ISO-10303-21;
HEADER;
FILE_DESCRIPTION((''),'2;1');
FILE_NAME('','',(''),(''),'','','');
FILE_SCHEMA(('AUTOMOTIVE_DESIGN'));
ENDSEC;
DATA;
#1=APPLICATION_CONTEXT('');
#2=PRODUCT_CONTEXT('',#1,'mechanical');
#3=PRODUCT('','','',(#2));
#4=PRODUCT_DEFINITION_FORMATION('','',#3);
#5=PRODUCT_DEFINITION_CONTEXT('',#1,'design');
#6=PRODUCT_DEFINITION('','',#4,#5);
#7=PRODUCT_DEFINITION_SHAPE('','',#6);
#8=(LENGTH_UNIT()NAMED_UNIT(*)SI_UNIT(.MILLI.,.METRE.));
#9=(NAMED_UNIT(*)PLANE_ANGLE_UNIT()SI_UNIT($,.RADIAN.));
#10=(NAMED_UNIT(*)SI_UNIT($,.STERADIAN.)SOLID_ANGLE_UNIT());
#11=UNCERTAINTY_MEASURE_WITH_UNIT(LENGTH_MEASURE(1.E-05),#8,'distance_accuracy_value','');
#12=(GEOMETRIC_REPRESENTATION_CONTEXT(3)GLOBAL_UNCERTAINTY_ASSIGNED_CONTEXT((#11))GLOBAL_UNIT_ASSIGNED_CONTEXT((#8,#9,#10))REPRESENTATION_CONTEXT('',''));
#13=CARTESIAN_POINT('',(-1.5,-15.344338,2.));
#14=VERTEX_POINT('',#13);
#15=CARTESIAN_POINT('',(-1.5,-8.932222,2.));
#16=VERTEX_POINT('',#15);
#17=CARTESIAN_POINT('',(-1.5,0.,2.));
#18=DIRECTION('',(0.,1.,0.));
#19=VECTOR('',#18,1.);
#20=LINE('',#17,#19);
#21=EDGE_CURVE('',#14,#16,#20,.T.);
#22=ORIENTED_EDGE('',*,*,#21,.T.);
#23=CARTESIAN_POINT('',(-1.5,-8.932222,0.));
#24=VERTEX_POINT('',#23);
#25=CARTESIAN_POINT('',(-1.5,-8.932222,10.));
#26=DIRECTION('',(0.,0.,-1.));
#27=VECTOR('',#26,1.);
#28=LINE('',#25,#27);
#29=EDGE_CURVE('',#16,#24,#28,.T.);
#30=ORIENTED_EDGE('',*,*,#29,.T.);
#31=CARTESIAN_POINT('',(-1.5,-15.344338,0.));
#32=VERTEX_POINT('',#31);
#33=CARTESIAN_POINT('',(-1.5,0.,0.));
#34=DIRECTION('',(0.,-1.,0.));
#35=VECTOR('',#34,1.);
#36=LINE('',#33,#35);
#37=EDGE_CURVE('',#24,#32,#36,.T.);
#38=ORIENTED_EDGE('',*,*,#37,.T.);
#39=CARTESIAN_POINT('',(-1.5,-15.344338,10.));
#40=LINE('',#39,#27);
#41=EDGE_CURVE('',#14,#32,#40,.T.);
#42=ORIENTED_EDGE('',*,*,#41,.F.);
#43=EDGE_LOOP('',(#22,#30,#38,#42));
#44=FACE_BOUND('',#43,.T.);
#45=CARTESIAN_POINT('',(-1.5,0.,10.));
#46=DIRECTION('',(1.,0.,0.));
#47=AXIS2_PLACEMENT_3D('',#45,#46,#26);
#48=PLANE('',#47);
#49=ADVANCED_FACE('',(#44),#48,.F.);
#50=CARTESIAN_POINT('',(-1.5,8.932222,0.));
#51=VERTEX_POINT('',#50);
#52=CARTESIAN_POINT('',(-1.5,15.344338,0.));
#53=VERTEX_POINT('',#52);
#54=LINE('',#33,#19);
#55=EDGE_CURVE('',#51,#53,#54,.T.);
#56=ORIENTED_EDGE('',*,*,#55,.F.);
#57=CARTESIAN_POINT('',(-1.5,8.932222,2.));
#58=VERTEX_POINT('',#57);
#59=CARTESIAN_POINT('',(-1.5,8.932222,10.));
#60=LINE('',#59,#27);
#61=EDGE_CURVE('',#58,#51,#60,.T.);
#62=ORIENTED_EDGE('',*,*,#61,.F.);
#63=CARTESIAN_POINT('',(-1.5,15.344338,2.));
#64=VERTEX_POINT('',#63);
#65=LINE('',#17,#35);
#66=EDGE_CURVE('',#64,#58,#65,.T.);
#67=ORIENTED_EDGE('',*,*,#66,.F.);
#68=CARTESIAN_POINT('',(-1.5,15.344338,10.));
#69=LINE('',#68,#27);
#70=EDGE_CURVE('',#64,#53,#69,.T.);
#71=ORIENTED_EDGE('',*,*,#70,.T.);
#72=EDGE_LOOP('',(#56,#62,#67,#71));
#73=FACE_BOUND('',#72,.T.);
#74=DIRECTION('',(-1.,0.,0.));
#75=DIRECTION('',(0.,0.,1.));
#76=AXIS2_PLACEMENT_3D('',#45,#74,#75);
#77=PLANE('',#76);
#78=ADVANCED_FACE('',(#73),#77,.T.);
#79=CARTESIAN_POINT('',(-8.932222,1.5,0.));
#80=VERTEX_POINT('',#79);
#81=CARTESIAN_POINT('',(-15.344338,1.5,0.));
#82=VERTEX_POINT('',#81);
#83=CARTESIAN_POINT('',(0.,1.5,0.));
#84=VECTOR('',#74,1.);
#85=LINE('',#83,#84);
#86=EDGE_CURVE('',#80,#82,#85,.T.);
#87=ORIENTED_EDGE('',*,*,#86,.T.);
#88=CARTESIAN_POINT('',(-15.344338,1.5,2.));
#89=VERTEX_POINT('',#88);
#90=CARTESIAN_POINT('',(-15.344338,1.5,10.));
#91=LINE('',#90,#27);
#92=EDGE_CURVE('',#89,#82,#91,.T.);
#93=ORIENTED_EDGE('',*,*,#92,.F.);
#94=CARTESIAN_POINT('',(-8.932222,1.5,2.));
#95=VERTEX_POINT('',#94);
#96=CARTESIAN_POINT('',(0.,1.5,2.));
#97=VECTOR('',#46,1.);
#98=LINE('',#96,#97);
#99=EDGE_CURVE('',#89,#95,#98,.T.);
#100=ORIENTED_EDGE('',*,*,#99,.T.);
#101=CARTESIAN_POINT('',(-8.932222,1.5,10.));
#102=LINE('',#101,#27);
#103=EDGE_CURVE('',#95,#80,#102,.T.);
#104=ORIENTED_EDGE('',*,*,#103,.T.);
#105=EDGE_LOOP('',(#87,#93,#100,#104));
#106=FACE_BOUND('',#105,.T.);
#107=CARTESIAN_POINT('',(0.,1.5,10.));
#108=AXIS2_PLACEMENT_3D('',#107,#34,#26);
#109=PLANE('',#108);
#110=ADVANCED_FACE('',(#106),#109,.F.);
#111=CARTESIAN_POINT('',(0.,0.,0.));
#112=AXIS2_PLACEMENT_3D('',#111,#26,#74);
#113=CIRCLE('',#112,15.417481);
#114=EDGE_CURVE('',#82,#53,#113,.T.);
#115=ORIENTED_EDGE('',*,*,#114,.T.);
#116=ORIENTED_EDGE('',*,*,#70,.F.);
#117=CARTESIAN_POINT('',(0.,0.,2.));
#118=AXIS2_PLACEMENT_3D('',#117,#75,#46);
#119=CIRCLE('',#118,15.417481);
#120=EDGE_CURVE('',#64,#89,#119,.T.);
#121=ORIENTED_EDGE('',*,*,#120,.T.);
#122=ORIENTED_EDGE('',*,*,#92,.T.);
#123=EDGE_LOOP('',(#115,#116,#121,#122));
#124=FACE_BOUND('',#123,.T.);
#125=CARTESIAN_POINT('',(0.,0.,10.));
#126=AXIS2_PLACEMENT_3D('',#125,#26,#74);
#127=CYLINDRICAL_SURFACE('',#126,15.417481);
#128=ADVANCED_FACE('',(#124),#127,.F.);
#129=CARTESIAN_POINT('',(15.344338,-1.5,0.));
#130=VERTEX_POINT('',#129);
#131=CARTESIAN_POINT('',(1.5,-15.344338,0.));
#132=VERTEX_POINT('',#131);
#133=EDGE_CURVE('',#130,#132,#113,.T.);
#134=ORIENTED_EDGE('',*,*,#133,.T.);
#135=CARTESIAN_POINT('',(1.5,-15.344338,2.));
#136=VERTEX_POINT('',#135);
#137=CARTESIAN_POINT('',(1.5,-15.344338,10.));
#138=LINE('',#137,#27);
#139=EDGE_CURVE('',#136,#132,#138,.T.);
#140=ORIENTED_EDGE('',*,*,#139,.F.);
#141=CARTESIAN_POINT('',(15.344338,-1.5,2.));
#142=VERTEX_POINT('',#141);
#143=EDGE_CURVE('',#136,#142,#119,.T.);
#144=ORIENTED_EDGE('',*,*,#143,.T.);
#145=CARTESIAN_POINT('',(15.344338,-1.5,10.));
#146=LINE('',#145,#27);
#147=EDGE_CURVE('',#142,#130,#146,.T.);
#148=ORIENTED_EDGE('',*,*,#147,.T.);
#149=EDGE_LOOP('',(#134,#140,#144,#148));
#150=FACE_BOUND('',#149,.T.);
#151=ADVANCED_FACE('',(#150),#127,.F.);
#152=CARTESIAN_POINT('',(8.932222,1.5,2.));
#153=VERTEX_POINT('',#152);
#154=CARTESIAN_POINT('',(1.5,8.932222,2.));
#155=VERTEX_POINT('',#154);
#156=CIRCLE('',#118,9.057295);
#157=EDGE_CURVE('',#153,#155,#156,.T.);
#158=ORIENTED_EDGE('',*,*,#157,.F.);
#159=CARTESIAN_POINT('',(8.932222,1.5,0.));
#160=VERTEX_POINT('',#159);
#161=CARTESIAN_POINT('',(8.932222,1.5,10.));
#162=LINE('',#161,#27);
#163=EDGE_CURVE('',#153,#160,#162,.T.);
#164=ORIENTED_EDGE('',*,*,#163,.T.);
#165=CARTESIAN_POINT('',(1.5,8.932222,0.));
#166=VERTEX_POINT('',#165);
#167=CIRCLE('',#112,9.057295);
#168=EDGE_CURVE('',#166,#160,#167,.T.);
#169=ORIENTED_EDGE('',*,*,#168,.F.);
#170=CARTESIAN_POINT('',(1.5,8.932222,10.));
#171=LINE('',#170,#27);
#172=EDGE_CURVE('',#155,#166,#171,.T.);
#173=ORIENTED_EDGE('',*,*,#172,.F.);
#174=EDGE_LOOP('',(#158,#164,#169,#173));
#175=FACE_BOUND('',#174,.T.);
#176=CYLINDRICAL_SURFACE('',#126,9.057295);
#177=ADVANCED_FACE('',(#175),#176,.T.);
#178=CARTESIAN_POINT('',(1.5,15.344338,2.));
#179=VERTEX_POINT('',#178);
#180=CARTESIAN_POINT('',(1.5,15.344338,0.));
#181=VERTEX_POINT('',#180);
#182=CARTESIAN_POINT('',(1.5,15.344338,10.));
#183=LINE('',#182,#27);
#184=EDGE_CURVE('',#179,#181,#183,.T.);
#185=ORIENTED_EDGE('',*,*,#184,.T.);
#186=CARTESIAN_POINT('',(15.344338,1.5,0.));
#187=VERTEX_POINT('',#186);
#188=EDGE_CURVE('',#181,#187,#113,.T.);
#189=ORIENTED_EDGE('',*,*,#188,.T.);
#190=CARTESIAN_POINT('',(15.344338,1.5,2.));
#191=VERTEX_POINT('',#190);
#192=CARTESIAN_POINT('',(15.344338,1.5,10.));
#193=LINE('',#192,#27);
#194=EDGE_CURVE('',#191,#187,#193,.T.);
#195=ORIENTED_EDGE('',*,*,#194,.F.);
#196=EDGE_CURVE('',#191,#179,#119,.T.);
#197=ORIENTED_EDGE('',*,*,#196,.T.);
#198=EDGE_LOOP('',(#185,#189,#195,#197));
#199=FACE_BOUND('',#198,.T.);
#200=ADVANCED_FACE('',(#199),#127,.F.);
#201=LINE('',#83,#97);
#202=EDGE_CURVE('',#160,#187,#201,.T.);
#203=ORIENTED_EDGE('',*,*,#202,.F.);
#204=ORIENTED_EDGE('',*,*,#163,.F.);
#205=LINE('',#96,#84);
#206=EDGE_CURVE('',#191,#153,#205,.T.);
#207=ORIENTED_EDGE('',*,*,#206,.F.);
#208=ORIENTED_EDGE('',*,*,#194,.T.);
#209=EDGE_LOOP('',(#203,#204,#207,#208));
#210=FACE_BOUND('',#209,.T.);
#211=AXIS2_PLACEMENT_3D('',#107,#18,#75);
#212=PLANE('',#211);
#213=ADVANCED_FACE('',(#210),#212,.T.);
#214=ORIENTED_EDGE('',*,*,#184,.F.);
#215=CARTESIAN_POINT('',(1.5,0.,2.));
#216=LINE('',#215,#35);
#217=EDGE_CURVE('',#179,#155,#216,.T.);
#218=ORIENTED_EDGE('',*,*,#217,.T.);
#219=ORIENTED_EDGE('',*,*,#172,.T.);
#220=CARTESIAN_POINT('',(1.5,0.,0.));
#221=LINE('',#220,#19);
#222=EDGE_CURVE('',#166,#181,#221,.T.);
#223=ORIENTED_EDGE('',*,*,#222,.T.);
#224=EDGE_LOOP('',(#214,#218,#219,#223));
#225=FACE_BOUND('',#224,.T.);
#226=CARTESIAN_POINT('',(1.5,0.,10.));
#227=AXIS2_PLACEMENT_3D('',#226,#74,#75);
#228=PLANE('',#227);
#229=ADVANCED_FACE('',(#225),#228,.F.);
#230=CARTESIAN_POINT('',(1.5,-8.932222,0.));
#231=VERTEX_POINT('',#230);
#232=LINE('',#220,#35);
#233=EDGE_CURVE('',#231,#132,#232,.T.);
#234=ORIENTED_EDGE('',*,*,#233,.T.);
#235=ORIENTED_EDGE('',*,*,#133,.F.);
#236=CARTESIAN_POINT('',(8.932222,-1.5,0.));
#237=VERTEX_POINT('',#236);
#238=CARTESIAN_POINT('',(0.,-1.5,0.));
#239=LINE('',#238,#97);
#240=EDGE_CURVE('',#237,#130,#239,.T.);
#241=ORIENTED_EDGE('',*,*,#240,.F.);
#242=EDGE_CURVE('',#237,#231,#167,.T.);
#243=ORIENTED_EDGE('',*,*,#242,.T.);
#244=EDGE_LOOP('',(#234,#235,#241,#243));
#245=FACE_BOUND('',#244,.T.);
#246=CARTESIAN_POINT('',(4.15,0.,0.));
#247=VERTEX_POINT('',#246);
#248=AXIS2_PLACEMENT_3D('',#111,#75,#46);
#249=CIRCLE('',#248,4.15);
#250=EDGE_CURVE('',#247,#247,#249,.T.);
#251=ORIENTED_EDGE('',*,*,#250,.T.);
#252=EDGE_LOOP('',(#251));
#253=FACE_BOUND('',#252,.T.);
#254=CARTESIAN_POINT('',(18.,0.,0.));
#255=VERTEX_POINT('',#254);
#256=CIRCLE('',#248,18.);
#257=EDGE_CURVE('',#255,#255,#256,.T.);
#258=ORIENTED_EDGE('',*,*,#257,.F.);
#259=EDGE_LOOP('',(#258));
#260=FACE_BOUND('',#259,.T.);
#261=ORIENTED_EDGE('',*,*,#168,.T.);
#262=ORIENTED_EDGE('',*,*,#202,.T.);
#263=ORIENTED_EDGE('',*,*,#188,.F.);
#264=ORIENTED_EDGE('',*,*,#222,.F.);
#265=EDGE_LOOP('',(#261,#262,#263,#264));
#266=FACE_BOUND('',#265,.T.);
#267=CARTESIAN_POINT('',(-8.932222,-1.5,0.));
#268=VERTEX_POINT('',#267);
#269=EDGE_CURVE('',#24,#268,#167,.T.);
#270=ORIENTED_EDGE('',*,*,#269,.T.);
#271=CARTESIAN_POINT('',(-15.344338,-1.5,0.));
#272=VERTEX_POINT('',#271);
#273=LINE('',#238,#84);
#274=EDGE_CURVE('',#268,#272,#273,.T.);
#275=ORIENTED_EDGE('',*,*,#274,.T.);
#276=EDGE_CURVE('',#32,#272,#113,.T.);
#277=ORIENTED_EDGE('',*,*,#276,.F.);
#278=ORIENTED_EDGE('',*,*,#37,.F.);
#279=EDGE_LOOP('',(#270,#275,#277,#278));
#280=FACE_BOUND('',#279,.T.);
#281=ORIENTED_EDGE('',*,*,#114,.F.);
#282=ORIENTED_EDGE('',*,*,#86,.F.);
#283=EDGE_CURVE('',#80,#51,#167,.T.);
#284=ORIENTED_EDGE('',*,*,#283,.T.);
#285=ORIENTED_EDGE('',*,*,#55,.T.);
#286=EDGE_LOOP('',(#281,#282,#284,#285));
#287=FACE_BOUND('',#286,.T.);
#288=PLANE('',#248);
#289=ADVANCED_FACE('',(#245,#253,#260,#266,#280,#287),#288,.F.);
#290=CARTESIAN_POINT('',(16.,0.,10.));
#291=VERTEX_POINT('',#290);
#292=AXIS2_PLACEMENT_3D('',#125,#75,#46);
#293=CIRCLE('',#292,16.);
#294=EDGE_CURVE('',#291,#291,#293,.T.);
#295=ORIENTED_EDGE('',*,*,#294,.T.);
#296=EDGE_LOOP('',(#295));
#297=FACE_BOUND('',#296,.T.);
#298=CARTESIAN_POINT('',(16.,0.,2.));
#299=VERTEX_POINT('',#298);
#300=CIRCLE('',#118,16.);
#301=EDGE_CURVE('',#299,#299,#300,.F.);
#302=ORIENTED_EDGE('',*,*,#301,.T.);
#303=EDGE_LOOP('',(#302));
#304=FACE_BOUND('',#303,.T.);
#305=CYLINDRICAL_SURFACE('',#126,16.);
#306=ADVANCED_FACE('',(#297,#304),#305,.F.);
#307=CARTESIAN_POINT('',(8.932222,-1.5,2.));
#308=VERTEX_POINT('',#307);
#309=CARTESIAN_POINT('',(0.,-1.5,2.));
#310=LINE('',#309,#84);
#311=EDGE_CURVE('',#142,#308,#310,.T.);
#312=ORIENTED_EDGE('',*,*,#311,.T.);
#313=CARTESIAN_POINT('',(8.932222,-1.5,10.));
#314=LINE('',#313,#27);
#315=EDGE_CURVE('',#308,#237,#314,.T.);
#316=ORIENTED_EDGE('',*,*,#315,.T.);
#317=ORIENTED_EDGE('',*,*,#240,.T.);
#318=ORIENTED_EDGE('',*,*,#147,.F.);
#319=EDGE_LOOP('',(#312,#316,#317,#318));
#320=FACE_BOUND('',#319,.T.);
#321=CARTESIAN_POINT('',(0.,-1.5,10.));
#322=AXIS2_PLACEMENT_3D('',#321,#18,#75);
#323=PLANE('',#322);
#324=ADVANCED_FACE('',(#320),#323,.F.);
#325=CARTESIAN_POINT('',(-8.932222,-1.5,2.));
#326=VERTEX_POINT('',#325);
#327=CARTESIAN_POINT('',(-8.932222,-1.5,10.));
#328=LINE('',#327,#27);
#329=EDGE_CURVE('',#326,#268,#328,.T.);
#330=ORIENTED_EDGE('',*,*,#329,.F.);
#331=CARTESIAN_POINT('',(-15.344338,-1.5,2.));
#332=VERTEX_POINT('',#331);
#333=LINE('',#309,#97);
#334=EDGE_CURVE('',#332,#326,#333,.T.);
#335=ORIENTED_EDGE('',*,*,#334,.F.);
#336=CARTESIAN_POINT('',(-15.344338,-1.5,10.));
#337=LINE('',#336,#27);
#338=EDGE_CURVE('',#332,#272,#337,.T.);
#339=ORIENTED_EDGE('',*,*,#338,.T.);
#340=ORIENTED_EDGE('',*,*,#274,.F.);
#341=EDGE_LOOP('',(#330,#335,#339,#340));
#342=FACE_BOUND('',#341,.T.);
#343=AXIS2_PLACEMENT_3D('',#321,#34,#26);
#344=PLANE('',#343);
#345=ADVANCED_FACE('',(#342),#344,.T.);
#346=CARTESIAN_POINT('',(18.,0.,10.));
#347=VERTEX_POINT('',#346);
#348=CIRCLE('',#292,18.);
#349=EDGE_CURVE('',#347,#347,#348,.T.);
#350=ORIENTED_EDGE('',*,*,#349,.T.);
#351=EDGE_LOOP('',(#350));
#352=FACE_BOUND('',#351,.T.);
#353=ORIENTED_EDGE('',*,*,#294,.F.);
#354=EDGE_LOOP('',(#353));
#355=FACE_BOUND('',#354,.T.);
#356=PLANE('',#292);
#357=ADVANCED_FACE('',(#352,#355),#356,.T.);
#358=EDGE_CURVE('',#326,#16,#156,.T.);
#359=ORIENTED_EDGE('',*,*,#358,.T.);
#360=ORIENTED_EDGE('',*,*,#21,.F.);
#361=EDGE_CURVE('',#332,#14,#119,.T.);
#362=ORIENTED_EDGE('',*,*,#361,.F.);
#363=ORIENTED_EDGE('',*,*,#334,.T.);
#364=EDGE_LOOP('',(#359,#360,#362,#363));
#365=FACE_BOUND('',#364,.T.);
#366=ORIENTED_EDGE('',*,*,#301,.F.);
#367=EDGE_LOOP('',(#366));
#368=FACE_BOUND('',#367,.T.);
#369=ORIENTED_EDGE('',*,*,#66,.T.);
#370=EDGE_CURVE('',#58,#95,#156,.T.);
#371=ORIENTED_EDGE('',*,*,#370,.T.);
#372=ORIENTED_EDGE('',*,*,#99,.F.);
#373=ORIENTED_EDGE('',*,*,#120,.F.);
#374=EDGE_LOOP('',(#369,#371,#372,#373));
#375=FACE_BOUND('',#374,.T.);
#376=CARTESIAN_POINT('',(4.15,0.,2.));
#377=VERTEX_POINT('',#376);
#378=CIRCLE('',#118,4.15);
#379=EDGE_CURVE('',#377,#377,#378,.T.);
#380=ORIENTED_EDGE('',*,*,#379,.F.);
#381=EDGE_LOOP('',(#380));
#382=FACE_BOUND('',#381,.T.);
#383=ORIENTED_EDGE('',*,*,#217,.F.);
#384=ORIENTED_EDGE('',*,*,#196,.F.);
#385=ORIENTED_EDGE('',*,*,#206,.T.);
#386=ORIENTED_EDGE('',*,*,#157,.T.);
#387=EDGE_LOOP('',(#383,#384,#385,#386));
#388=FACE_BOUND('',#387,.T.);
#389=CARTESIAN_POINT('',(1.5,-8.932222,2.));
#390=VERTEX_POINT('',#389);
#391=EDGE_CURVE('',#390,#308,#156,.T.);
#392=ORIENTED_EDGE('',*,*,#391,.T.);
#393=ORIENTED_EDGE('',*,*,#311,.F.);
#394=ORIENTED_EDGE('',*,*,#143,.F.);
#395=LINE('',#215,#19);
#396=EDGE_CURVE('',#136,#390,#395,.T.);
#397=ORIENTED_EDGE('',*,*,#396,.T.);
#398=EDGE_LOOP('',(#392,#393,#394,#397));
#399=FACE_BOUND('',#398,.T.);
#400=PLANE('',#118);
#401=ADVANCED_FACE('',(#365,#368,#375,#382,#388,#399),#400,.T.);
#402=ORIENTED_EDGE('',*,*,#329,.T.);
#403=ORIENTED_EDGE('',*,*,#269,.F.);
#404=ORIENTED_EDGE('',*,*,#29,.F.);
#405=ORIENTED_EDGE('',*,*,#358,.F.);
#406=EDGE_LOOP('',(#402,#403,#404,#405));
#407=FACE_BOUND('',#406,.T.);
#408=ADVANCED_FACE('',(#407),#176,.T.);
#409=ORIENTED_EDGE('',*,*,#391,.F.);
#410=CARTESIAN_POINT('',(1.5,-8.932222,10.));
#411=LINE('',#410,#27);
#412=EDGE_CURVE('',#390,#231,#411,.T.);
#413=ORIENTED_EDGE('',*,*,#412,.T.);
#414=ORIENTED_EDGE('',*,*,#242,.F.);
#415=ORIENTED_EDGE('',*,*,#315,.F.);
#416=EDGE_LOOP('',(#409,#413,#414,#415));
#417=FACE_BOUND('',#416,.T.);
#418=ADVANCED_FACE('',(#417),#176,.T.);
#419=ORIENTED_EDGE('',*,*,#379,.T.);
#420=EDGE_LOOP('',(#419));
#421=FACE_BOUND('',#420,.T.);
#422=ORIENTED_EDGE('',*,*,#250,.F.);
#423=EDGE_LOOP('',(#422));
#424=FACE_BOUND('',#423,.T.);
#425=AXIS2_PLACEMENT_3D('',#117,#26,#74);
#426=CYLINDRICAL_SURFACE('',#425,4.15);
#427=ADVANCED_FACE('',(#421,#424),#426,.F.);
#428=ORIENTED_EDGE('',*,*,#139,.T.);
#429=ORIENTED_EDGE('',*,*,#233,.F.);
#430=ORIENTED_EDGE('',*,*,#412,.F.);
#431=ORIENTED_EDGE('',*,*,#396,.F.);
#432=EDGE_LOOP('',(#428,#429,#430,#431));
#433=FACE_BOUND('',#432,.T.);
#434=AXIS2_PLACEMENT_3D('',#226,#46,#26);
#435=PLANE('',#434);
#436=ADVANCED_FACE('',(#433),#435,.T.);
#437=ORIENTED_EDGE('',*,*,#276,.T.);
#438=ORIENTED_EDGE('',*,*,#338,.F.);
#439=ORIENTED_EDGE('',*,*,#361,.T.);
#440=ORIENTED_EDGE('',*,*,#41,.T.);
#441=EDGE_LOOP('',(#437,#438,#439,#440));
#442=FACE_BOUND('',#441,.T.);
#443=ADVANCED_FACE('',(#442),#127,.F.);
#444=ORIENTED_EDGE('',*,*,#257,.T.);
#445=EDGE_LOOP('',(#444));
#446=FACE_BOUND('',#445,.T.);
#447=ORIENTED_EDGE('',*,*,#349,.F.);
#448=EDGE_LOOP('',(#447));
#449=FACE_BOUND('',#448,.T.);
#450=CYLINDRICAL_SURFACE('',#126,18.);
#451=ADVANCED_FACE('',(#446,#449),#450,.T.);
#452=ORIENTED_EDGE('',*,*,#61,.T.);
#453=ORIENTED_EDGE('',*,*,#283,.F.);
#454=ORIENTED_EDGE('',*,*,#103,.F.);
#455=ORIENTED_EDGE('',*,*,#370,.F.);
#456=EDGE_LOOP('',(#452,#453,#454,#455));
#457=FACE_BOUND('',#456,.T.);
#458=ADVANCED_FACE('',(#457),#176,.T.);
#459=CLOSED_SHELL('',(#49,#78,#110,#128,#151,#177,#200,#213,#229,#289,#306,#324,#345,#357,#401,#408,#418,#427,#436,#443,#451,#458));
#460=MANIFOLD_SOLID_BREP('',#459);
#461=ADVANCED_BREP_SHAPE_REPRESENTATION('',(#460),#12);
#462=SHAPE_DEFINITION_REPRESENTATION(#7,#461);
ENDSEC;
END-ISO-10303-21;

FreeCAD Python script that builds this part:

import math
import FreeCAD as App
import Part
import Sketcher

doc = App.newDocument("Part")
body = doc.addObject("PartDesign::Body", "Body")

sketch1 = body.newObject("Sketcher::SketchObject", "Sketch")
sketch1.AttachmentSupport = (doc.getObject("XY_Plane"), [""])
sketch1.MapMode = "FlatFace"
sketch1.addGeometry([
    Part.Circle(App.Vector(0, 0, 0), App.Vector(0, 0, 1), 16),
    Part.Circle(App.Vector(0, 0, 0), App.Vector(0, 0, 1), 4.2),
], False)
sketch1.addConstraint([
    Sketcher.Constraint("Coincident", 0, 3, -1, 1),
    Sketcher.Constraint("Coincident", 1, 3, -1, 1),
    Sketcher.Constraint("Diameter", 0, 32.0),
    Sketcher.Constraint("Diameter", 1, 8.3),
])
pad1 = body.newObject("PartDesign::Pad", "Pad")
pad1.Profile = sketch1
pad1.Length = 2

sketch2 = body.newObject("Sketcher::SketchObject", "Sketch001")
sketch2.AttachmentSupport = (doc.getObject("XY_Plane"), [""])
sketch2.MapMode = "FlatFace"
sketch2.addGeometry([
    Part.Circle(App.Vector(0, 0, 0), App.Vector(0, 0, 1), 18),
    Part.Circle(App.Vector(0, 0, 0), App.Vector(0, 0, 1), 16),
], False)
sketch2.addConstraint([
    Sketcher.Constraint("Coincident", 0, 3, -1, 1),
    Sketcher.Constraint("Coincident", 1, 3, -1, 1),
    Sketcher.Constraint("Diameter", 0, 36.0),
    Sketcher.Constraint("Diameter", 1, 32.0),
])
pad2 = body.newObject("PartDesign::Pad", "Pad001")
pad2.Profile = sketch2
pad2.Length = 10

sketch3 = body.newObject("Sketcher::SketchObject", "Sketch002")
sketch3.AttachmentSupport = (doc.getObject("XY_Plane"), [""])
sketch3.MapMode = "FlatFace"
sketch3.addGeometry([
    Part.ArcOfCircle(Part.Circle(App.Vector(0, 0, 0), App.Vector(0, 0, 1), 9), math.radians(-80), math.radians(-10)),
    Part.LineSegment(App.Vector(9, -2, 0), App.Vector(15, -2, 0)),
    Part.ArcOfCircle(Part.Circle(App.Vector(0, 0, 0), App.Vector(0, 0, 1), 15), math.radians(-84), math.radians(-6)),
    Part.LineSegment(App.Vector(2, -15, 0), App.Vector(2, -9, 0)),
    Part.ArcOfCircle(Part.Circle(App.Vector(0, 0, 0), App.Vector(0, 0, 1), 9), math.radians(-170), math.radians(-100)),
    Part.LineSegment(App.Vector(-2, -9, 0), App.Vector(-2, -15, 0)),
    Part.ArcOfCircle(Part.Circle(App.Vector(0, 0, 0), App.Vector(0, 0, 1), 15), math.radians(-174), math.radians(-96)),
    Part.LineSegment(App.Vector(-15, -2, 0), App.Vector(-9, -2, 0)),
    Part.ArcOfCircle(Part.Circle(App.Vector(0, 0, 0), App.Vector(0, 0, 1), 9), math.radians(100), math.radians(170)),
    Part.LineSegment(App.Vector(-9, 2, 0), App.Vector(-15, 2, 0)),
    Part.ArcOfCircle(Part.Circle(App.Vector(0, 0, 0), App.Vector(0, 0, 1), 15), math.radians(96), math.radians(174)),
    Part.LineSegment(App.Vector(-2, 15, 0), App.Vector(-2, 9, 0)),
    Part.ArcOfCircle(Part.Circle(App.Vector(0, 0, 0), App.Vector(0, 0, 1), 9), math.radians(10), math.radians(80)),
    Part.LineSegment(App.Vector(2, 9, 0), App.Vector(2, 15, 0)),
    Part.ArcOfCircle(Part.Circle(App.Vector(0, 0, 0), App.Vector(0, 0, 1), 15), math.radians(6), math.radians(84)),
    Part.LineSegment(App.Vector(15, 2, 0), App.Vector(9, 2, 0)),
], False)
sketch3.addConstraint([
    Sketcher.Constraint("Coincident", 0, 2, 1, 1),
    Sketcher.Constraint("Coincident", 1, 2, 2, 2),
    Sketcher.Constraint("Coincident", 2, 1, 3, 1),
    Sketcher.Constraint("Coincident", 3, 2, 0, 1),
    Sketcher.Constraint("Coincident", 4, 2, 5, 1),
    Sketcher.Constraint("Coincident", 5, 2, 6, 2),
    Sketcher.Constraint("Coincident", 6, 1, 7, 1),
    Sketcher.Constraint("Coincident", 7, 2, 4, 1),
    Sketcher.Constraint("Coincident", 8, 2, 9, 1),
    Sketcher.Constraint("Coincident", 9, 2, 10, 2),
    Sketcher.Constraint("Coincident", 10, 1, 11, 1),
    Sketcher.Constraint("Coincident", 11, 2, 8, 1),
    Sketcher.Constraint("Coincident", 12, 2, 13, 1),
    Sketcher.Constraint("Coincident", 13, 2, 14, 2),
    Sketcher.Constraint("Coincident", 14, 1, 15, 1),
    Sketcher.Constraint("Coincident", 15, 2, 12, 1),
    Sketcher.Constraint("Horizontal", 1),
    Sketcher.Constraint("Vertical", 3),
    Sketcher.Constraint("Vertical", 5),
    Sketcher.Constraint("Horizontal", 7),
    Sketcher.Constraint("Horizontal", 9),
    Sketcher.Constraint("Vertical", 11),
    Sketcher.Constraint("Vertical", 13),
    Sketcher.Constraint("Horizontal", 15),
    Sketcher.Constraint("Coincident", 0, 3, -1, 1),
    Sketcher.Constraint("Coincident", 2, 3, -1, 1),
    Sketcher.Constraint("Coincident", 4, 3, -1, 1),
    Sketcher.Constraint("Coincident", 6, 3, -1, 1),
    Sketcher.Constraint("Coincident", 8, 3, -1, 1),
    Sketcher.Constraint("Coincident", 10, 3, -1, 1),
    Sketcher.Constraint("Coincident", 12, 3, -1, 1),
    Sketcher.Constraint("Coincident", 14, 3, -1, 1),
    Sketcher.Constraint("Equal", 0, 4),
    Sketcher.Constraint("Equal", 2, 6),
    Sketcher.Constraint("Equal", 4, 8),
    Sketcher.Constraint("Equal", 6, 10),
    Sketcher.Constraint("Equal", 8, 12),
    Sketcher.Constraint("Equal", 10, 14),
    Sketcher.Constraint("Horizontal", 3, 2, 4, 2),
    Sketcher.Constraint("Horizontal", 1, 2, 6, 1),
    Sketcher.Constraint("Horizontal", 11, 2, 12, 2),
    Sketcher.Constraint("Horizontal", 9, 2, 14, 1),
    Sketcher.Constraint("Vertical", 7, 2, 8, 2),
    Sketcher.Constraint("Vertical", 5, 2, 10, 1),
    Sketcher.Constraint("Equal", 15, 3),
    Sketcher.Constraint("DistanceX", 4, 2, 3, 2, 3.0),
    Sketcher.Constraint("Radius", 2, 15.417481),
    Sketcher.Constraint("Radius", 0, 9.057295),
])
pocket1 = body.newObject("PartDesign::Pocket", "Pocket")
pocket1.Profile = sketch3
pocket1.Length = 10
pocket1.Reversed = True

doc.recompute()
